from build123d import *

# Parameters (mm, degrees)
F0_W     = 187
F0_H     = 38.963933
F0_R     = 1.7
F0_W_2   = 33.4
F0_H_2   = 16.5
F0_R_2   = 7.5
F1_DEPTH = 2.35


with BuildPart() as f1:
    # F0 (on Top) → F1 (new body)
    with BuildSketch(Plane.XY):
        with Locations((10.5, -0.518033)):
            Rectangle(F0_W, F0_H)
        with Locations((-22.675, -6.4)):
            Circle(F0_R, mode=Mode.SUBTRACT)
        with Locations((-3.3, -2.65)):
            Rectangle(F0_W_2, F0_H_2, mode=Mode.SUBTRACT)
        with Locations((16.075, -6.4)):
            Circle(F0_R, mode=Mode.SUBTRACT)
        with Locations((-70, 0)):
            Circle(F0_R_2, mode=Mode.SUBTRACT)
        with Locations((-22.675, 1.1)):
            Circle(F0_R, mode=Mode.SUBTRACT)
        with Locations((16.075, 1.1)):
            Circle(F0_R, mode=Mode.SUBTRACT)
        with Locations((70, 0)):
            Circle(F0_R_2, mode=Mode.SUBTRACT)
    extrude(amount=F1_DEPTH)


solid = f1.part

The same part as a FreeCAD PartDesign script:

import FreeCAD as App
import Part
import Sketcher

V = App.Vector
Q = App.Units.Quantity


def add_polygon(sketch, points):
    """Adds a closed chain of lines whose ends are joined by coincident constraints."""
    first, n = sketch.GeometryCount, len(points)
    for a, b in zip(points, points[1:] + points[:1]):
        sketch.addGeometry(Part.LineSegment(App.Vector(*a, 0), App.Vector(*b, 0)), False)
    for i in range(n):
        sketch.addConstraint(Sketcher.Constraint("Coincident", first + i, 2, first + (i + 1) % n, 1))

doc = App.newDocument("Part")
body = doc.addObject("PartDesign::Body", "Body")

sketch1 = body.newObject("Sketcher::SketchObject", "Sketch")
sketch1.AttachmentSupport = (doc.getObject("XY_Plane"), [""])
sketch1.MapMode = "FlatFace"
add_polygon(sketch1, [(-83, 18.963933), (-83, -20), (104, -20), (104, 18.963933)])
sketch1.addGeometry(Part.Circle(V(-22.675, -6.4, 0), V(0, 0, 1), 1.7), False)
add_polygon(sketch1, [(13.4, -10.9), (-20, -10.9), (-20, 5.6), (13.4, 5.6)])
sketch1.addGeometry(Part.Circle(V(16.075, -6.4, 0), V(0, 0, 1), 1.7), False)
sketch1.addGeometry(Part.Circle(V(-70, 0, 0), V(0, 0, 1), 7.5), False)
sketch1.addGeometry(Part.Circle(V(-22.675, 1.1, 0), V(0, 0, 1), 1.7), False)
sketch1.addGeometry(Part.Circle(V(16.075, 1.1, 0), V(0, 0, 1), 1.7), False)
sketch1.addGeometry(Part.Circle(V(70, 0, 0), V(0, 0, 1), 7.5), False)
sketch1.addConstraint([
    Sketcher.Constraint("Vertical", 0),
    Sketcher.Constraint("Horizontal", 1),
    Sketcher.Constraint("Vertical", 2),
    Sketcher.Constraint("Horizontal", 3),
    Sketcher.Constraint("Horizontal", 5),
    Sketcher.Constraint("Vertical", 6),
    Sketcher.Constraint("Horizontal", 7),
    Sketcher.Constraint("Vertical", 8),
    Sketcher.Constraint("Equal", 4, 9),
    Sketcher.Constraint("Equal", 9, 11),
    Sketcher.Constraint("Equal", 11, 12),
    Sketcher.Constraint("Equal", 10, 13),
    Sketcher.Constraint("Symmetric", 10, 3, 13, 3, -1, 1),
    Sketcher.Constraint("PointOnObject", 10, 3, -1),
    Sketcher.Constraint("Horizontal", 4, 3, 9, 3),
    Sketcher.Constraint("Horizontal", 11, 3, 12, 3),
    Sketcher.Constraint("Vertical", 4, 3, 11, 3),
    Sketcher.Constraint("Vertical", 9, 3, 12, 3),
    Sketcher.Constraint("Diameter", 10, Q("15 mm")),
    Sketcher.Constraint("Diameter", 4, Q("3.4 mm")),
    Sketcher.Constraint("DistanceX", 1, 1, 1, 2, Q("187 mm")),
    Sketcher.Constraint("DistanceX", 5, 2, 5, 1, Q("33.4 mm")),
    Sketcher.Constraint("DistanceY", 6, 1, 6, 2, Q("16.5 mm")),
    Sketcher.Constraint("DistanceX", 10, 3, -1, 1, Q("70 mm")),
    Sketcher.Constraint("DistanceX", 0, 2, -1, 1, Q("83 mm")),
    Sketcher.Constraint("DistanceY", 0, 2, -1, 1, Q("20 mm")),
    Sketcher.Constraint("DistanceX", 5, 2, -1, 1, Q("20 mm")),
    Sketcher.Constraint("DistanceY", 5, 2, 11, 3, Q("12 mm")),
    Sketcher.Constraint("DistanceY", 4, 3, 6, 2, Q("12 mm")),
    Sketcher.Constraint("DistanceY", 4, 3, -1, 1, Q("6.4 mm")),
    Sketcher.Constraint("DistanceX", 4, 3, 9, 3, Q("38.75 mm")),
    Sketcher.Constraint("DistanceX", 4, 3, -1, 1, Q("22.675 mm")),
    Sketcher.Constraint("DistanceY", 0, 2, 0, 1, Q("38.963933 mm")),
])
pad1 = body.newObject("PartDesign::Pad", "Pad")
pad1.Profile = sketch1
pad1.Length = 2.35

doc.recompute()
